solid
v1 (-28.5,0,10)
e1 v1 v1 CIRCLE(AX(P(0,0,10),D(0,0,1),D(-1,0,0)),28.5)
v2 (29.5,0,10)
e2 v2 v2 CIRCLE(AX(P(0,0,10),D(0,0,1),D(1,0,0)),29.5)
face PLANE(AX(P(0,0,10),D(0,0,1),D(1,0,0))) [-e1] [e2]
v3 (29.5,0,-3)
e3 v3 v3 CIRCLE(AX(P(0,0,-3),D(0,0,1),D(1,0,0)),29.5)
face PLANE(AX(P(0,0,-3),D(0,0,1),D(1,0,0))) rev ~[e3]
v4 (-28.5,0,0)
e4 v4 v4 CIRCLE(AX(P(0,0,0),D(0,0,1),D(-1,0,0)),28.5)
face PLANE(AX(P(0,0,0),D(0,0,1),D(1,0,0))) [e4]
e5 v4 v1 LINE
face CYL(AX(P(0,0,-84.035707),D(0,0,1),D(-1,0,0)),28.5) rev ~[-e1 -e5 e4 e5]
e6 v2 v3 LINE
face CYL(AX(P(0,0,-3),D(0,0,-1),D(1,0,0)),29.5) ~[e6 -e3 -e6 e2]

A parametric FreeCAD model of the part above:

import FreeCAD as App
import Part
import Sketcher

doc = App.newDocument("Part")
body = doc.addObject("PartDesign::Body", "Body")

# Sketch on XY plane
sketch1 = body.newObject("Sketcher::SketchObject", "Sketch")
sketch1.AttachmentSupport = (doc.getObject("XY_Plane"), [""])
sketch1.MapMode = "FlatFace"
sketch1.addGeometry(Part.Circle(App.Vector(0, 0, 0), App.Vector(0, 0, 1), 30), False)
sketch1.addConstraint(Sketcher.Constraint("Coincident", 0, 3, -1, 1))
sketch1.addConstraint(Sketcher.Constraint("Diameter", 0, 59.0))
pad1 = body.newObject("PartDesign::Pad", "Pad")
pad1.Profile = sketch1
pad1.Length = 10

# Sketch on XY plane
sketch2 = body.newObject("Sketcher::SketchObject", "Sketch001")
sketch2.AttachmentSupport = (doc.getObject("XY_Plane"), [""])
sketch2.MapMode = "FlatFace"
sketch2.addGeometry(Part.Circle(App.Vector(0, 0, 0), App.Vector(0, 0, 1), 28), False)
sketch2.addConstraint(Sketcher.Constraint("Coincident", 0, 3, -1, 1))
sketch2.addConstraint(Sketcher.Constraint("Diameter", 0, 57.0))
doc.recompute()
hole = body.newObject("PartDesign::Hole", "Hole")
hole.Profile = sketch2
hole.ThreadType = "None"
hole.Diameter = 57
hole.DepthType = "ThroughAll"
hole.Reversed = True

# Sketch on XY plane
sketch3 = body.newObject("Sketcher::SketchObject", "Sketch002")
sketch3.AttachmentSupport = (doc.getObject("XY_Plane"), [""])
sketch3.MapMode = "FlatFace"
sketch3.AttachmentOffset = App.Placement(App.Vector(0, 0, -3), App.Rotation())
sketch3.addGeometry(Part.Circle(App.Vector(0, 0, 0), App.Vector(0, 0, 1), 30), False)
sketch3.addConstraint(Sketcher.Constraint("Coincident", 0, 3, -1, 1))
sketch3.addConstraint(Sketcher.Constraint("Diameter", 0, 59.0))
pad2 = body.newObject("PartDesign::Pad", "Pad001")
pad2.Profile = sketch3
pad2.Length = 3

doc.recompute()
